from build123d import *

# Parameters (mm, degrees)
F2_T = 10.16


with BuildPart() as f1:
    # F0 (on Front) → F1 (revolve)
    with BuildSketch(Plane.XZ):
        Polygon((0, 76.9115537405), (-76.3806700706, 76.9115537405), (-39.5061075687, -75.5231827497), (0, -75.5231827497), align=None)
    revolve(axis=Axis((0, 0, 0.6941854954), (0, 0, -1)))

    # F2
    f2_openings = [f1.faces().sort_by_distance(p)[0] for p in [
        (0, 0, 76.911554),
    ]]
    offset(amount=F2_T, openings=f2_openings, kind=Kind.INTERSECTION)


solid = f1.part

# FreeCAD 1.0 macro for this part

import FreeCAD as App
import Part
import Sketcher
from FreeCAD import Vector
Q = App.Units.Quantity


def faces_at(feature, points):
    """Names of the faces that lie closest to the given points."""
    faces = feature.Shape.Faces
    near = lambda p: min(range(len(faces)), key=lambda i: faces[i].distToShape(Part.Vertex(*p))[0])
    return sorted({f"Face{near(p) + 1}" for p in points})


def add_polygon(sketch, points):
    """Adds a closed chain of lines whose ends are joined by coincident constraints."""
    first, n = sketch.GeometryCount, len(points)
    for a, b in zip(points, points[1:] + points[:1]):
        sketch.addGeometry(Part.LineSegment(App.Vector(*a, 0), App.Vector(*b, 0)), False)
    for i in range(n):
        sketch.addConstraint(Sketcher.Constraint("Coincident", first + i, 2, first + (i + 1) % n, 1))

doc = App.newDocument("Part")
body = doc.addObject("PartDesign::Body", "Body")

# Sketch on XZ plane
sketch1 = body.newObject("Sketcher::SketchObject", "Sketch")
sketch1.AttachmentSupport = (doc.getObject("XZ_Plane"), [""])
sketch1.MapMode = "FlatFace"
add_polygon(sketch1, [(0, 77), (-76, 77), (-40, -76), (0, -76)])  # lines 0-3
sketch1.addConstraint([
    Sketcher.Constraint("Horizontal", 0),
    Sketcher.Constraint("Horizontal", 2),
    Sketcher.Constraint("Vertical", 3),
    Sketcher.Constraint("PointOnObject", 2, 2, -2),
    Sketcher.Constraint("DistanceX", 0, 2, 0, 1, Q("76.38067 mm")),
    Sketcher.Constraint("Distance", 1, Q("156.831382 mm")),
    Sketcher.Constraint("DistanceX", 2, 1, 2, 2, Q("39.506108 mm")),
    Sketcher.Constraint("DistanceY", -1, 1, 0, 2, Q("76.911554 mm")),
])
revolution = body.newObject("PartDesign::Revolution", "Revolution")
revolution.Profile = sketch1
revolution.ReferenceAxis = (sketch1, ["V_Axis"])
revolution.Angle = 360
doc.recompute()

thickness = body.newObject("PartDesign::Thickness", "Thickness")
thickness.Base = (revolution, faces_at(revolution, [(0, 0, 76.912)]))
thickness.Value = Q("0.4 in")
thickness.Reversed = False
thickness.Join = "Intersection"

doc.recompute()
